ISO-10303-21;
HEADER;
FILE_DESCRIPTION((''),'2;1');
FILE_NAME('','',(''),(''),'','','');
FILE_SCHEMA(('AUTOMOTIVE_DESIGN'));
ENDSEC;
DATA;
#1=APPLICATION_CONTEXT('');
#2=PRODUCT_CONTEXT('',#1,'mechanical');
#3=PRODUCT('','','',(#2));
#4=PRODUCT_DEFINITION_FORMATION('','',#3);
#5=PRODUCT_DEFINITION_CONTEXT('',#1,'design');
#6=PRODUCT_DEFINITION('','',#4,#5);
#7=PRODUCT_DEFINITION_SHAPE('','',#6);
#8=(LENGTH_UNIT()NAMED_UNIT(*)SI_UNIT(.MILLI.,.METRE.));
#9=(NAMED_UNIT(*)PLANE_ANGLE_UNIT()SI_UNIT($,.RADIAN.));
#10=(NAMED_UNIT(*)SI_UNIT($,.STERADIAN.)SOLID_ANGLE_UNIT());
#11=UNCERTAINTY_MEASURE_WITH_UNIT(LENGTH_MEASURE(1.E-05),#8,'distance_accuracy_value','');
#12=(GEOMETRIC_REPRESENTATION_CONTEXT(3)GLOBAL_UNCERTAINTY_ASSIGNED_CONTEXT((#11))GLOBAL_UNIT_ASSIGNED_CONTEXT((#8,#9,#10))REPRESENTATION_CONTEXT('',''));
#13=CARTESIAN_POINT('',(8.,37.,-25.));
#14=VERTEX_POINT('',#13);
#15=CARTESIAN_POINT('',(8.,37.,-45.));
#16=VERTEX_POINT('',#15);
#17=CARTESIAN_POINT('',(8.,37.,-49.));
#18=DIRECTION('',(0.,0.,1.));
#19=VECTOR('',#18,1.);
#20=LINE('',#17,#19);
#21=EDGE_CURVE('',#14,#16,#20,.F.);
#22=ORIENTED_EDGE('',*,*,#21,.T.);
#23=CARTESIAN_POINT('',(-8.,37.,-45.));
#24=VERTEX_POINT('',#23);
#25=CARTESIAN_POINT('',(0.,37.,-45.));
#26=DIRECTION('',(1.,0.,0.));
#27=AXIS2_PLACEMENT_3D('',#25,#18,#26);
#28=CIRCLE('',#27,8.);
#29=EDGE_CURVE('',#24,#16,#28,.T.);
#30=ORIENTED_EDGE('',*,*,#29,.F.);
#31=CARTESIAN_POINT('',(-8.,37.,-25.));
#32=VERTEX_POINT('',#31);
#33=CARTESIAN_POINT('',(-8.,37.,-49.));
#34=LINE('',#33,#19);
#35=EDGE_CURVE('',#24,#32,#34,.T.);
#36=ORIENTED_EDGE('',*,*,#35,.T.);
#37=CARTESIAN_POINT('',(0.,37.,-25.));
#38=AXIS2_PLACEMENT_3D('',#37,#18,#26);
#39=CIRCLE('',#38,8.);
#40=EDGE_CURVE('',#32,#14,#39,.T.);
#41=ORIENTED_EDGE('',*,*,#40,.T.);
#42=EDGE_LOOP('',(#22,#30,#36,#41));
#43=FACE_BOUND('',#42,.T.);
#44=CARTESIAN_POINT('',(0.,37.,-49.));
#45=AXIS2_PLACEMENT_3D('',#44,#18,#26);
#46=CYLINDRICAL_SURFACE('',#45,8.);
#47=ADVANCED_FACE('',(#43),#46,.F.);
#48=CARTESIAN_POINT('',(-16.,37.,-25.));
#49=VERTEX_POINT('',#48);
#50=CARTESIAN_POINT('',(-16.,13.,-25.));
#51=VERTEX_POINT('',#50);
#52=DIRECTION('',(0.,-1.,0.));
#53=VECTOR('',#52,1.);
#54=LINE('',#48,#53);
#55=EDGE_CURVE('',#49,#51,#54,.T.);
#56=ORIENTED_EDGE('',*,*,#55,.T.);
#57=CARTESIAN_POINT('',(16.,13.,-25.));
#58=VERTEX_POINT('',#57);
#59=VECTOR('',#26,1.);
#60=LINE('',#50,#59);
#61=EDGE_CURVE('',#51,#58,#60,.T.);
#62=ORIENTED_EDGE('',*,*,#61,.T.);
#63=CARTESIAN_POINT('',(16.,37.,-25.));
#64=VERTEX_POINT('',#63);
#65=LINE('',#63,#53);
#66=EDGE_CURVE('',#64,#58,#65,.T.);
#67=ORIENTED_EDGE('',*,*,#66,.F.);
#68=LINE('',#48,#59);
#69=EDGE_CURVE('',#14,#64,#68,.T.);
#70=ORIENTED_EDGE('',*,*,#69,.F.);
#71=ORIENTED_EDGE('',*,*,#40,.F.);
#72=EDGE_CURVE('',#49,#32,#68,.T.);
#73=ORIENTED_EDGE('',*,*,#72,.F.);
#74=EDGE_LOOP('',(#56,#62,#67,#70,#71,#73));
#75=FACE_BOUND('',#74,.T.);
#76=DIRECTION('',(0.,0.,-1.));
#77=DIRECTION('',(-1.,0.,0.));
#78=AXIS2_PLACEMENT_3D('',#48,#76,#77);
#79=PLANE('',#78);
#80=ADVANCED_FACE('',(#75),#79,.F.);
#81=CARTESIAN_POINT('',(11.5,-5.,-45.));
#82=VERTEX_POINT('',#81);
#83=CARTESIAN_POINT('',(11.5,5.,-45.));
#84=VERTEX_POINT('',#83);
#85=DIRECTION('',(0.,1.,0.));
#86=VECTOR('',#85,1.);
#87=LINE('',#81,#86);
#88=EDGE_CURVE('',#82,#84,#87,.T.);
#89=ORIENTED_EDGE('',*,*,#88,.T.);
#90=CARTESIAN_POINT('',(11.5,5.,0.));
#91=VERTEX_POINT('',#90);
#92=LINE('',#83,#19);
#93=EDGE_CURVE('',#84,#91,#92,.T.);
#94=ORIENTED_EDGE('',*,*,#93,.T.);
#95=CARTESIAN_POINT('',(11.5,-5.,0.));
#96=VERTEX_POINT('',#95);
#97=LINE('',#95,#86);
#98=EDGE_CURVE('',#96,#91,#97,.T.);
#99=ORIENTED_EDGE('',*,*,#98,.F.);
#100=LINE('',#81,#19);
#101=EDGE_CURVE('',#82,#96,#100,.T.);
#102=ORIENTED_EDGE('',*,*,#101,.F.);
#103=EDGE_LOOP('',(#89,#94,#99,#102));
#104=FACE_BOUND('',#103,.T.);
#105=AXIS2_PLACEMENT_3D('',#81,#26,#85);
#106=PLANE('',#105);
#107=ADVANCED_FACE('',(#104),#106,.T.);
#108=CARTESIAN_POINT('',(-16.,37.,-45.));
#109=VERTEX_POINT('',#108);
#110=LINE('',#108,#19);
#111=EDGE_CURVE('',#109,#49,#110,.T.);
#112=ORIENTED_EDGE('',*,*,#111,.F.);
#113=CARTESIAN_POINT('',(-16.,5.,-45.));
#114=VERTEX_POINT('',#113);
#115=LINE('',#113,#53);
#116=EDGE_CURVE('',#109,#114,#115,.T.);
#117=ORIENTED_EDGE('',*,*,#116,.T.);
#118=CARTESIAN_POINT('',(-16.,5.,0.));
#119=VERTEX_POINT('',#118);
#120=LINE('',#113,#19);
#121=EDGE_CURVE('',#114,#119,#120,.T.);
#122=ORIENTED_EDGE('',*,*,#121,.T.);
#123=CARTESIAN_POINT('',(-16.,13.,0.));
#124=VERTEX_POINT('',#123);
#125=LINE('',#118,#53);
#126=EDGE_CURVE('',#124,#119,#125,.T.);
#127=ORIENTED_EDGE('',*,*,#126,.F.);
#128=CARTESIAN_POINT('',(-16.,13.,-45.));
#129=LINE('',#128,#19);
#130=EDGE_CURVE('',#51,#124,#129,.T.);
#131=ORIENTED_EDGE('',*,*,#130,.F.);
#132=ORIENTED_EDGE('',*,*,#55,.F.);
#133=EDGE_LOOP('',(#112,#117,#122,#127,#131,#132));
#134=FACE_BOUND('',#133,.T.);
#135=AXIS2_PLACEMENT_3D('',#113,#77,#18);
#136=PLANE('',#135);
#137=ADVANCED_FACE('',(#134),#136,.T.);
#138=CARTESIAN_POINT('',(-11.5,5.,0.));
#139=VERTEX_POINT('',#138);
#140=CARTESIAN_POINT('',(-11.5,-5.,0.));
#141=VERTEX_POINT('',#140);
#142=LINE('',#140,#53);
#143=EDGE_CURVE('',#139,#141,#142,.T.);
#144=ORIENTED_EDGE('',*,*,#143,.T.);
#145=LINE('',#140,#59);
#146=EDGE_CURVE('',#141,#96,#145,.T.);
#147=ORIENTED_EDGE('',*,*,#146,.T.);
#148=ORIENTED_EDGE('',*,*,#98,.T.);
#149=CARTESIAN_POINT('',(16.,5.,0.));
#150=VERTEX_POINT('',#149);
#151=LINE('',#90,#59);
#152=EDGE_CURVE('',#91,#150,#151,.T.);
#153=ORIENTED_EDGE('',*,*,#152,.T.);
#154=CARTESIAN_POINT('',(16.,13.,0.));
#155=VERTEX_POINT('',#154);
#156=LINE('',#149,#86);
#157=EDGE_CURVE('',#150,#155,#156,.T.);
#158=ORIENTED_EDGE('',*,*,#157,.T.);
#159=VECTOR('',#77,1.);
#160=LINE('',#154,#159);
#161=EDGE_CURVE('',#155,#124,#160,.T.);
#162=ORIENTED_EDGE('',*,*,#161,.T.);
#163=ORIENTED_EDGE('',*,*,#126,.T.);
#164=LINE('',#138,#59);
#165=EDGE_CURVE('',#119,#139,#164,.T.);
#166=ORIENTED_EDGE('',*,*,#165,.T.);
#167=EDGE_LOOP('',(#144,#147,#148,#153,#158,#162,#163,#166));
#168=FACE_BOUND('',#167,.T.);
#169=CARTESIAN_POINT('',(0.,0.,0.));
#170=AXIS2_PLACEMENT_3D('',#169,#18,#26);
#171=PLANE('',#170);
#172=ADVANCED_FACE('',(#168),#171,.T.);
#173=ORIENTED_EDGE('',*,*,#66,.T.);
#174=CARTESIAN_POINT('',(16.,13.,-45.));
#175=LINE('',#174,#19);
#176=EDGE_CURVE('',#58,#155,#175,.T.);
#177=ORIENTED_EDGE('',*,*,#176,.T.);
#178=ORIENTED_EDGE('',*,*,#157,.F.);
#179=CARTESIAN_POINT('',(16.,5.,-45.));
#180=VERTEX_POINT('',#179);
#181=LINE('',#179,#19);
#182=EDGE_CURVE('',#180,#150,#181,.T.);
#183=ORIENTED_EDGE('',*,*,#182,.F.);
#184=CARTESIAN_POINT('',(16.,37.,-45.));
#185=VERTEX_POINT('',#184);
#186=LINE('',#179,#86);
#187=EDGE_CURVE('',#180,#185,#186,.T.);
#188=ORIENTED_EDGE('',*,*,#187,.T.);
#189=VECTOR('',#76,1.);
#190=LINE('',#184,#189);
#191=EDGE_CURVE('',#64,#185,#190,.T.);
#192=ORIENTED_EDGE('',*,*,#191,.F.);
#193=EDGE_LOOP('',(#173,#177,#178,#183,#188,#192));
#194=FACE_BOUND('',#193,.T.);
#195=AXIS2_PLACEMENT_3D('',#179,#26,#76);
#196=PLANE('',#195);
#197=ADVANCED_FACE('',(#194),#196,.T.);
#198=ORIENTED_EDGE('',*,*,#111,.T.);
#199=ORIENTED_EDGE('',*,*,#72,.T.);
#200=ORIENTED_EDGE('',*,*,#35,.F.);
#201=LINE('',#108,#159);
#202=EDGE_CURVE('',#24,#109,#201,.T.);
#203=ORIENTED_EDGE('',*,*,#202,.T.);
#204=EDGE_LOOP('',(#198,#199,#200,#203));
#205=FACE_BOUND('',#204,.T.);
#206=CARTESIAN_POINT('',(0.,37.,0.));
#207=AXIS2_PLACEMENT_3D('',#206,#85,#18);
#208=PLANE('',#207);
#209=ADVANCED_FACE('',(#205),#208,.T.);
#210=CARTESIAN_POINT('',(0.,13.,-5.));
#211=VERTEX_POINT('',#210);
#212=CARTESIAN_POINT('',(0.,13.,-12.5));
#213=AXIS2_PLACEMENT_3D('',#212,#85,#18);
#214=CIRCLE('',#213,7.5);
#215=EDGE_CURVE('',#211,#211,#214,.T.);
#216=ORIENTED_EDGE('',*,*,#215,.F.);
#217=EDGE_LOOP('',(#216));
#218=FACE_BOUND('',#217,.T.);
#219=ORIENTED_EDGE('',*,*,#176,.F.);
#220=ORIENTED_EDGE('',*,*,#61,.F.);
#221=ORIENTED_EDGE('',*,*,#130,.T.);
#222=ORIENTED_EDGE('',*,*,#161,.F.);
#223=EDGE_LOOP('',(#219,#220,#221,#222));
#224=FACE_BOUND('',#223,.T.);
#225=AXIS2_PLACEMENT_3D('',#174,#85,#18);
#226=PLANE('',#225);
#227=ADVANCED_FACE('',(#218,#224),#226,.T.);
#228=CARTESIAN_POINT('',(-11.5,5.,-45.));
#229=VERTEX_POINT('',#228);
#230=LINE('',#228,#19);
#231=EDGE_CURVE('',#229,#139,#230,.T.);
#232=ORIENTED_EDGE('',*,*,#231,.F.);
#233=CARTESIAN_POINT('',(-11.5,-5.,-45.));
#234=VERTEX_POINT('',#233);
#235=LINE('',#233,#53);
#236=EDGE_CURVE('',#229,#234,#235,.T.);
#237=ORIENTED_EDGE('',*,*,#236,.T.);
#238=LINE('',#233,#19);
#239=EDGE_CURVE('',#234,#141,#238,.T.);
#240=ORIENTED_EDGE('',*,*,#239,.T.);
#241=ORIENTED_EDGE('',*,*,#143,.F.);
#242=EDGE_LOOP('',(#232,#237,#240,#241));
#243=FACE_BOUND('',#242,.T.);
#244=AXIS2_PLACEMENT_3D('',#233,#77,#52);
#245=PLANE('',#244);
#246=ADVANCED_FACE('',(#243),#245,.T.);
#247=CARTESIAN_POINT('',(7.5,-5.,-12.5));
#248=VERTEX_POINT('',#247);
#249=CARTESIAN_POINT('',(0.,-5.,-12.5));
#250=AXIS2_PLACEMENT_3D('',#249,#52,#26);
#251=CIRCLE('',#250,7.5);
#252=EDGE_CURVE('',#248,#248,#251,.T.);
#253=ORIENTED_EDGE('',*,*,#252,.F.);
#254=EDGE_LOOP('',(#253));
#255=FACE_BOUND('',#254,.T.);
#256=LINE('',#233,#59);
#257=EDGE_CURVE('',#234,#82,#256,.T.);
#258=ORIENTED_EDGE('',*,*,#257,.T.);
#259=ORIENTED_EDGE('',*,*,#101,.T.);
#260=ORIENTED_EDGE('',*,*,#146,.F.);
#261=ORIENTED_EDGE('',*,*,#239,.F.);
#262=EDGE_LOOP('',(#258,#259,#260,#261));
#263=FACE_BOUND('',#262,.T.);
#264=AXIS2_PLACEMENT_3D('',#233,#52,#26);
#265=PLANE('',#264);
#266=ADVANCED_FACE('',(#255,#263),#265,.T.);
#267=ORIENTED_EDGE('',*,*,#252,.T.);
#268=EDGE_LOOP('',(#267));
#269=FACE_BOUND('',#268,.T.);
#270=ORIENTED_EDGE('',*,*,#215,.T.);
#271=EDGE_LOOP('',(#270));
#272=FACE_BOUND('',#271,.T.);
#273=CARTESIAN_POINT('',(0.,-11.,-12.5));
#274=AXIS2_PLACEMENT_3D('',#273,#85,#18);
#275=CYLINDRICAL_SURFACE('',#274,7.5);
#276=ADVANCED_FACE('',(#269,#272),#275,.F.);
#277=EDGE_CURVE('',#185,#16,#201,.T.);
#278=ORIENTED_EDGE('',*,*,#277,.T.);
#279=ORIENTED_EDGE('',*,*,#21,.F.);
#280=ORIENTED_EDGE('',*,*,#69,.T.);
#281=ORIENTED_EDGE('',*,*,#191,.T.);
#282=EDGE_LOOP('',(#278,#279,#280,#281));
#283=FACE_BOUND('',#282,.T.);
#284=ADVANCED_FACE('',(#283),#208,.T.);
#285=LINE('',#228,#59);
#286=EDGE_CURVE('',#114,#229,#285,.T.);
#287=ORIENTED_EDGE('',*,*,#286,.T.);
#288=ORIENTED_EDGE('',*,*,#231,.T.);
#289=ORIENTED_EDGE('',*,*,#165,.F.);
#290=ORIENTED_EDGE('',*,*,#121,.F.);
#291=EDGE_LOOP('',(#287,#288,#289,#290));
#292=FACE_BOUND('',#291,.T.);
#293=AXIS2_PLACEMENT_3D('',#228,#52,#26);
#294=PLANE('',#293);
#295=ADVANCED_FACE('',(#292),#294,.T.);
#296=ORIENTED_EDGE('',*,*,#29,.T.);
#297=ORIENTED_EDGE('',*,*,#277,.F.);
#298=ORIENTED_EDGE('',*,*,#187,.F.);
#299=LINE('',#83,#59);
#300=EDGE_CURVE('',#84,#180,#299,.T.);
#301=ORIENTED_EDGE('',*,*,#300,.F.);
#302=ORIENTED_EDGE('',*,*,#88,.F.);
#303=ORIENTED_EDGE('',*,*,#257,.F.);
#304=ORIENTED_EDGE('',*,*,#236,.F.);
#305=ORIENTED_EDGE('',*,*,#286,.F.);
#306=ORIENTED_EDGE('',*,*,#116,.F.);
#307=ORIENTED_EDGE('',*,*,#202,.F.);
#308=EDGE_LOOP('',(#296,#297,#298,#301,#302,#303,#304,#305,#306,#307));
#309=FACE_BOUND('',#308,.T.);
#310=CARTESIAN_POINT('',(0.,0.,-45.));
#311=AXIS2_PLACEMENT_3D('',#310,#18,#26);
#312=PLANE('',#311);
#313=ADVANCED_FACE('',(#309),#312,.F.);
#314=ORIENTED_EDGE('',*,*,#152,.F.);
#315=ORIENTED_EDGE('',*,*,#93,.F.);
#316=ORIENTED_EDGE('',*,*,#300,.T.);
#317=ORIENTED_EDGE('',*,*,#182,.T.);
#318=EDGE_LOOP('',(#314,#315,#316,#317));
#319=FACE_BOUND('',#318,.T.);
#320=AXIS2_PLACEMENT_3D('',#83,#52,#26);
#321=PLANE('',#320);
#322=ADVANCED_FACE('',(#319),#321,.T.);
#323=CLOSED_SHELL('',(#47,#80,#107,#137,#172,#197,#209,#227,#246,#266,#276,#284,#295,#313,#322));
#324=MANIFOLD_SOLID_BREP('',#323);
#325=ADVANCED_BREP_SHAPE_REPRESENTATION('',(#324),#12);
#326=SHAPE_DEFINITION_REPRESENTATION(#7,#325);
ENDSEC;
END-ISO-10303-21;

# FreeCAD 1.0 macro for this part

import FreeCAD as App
import Part
import Sketcher
Q = App.Units.Quantity


def add_polygon(sketch, points):
    """Adds a closed chain of lines whose ends are joined by coincident constraints."""
    first, n = sketch.GeometryCount, len(points)
    for a, b in zip(points, points[1:] + points[:1]):
        sketch.addGeometry(Part.LineSegment(App.Vector(*a, 0), App.Vector(*b, 0)), False)
    for i in range(n):
        sketch.addConstraint(Sketcher.Constraint("Coincident", first + i, 2, first + (i + 1) % n, 1))

doc = App.newDocument("Part")
body = doc.addObject("PartDesign::Body", "Body")

# Sketch on XY plane
sketch1 = doc.addObject("Sketcher::SketchObject", "Sketch")
body.addObject(sketch1)
sketch1.AttachmentSupport = (doc.XY_Plane, [""])
sketch1.MapMode = "FlatFace"
add_polygon(sketch1, [(-11.5, -5), (11.5, -5), (11.5, 5), (16, 5), (16, 13), (-16, 13), (-16, 5), (-11.5, 5)])  # lines 0-7
sketch1.addConstraint([
    Sketcher.Constraint("Horizontal", 0),
    Sketcher.Constraint("Vertical", 1),
    Sketcher.Constraint("Horizontal", 2),
    Sketcher.Constraint("Vertical", 3),
    Sketcher.Constraint("Horizontal", 4),
    Sketcher.Constraint("Vertical", 5),
    Sketcher.Constraint("Horizontal", 6),
    Sketcher.Constraint("Vertical", 7),
    Sketcher.Constraint("Symmetric", 0, 2, 6, 2, -1, 1),
    Sketcher.Constraint("Symmetric", 2, 2, 5, 2, -2),
    Sketcher.Constraint("DistanceX", 0, 1, 0, 2, Q("23 mm")),
    Sketcher.Constraint("DistanceX", 4, 2, 4, 1, Q("32 mm")),
    Sketcher.Constraint("DistanceY", 1, 1, 1, 2, Q("10 mm")),
    Sketcher.Constraint("DistanceY", 3, 1, 3, 2, Q("8 mm")),
])
pad1 = doc.addObject("PartDesign::Pad", "Pad")
body.addObject(pad1)
pad1.Profile = sketch1
pad1.Length = 45
pad1.Reversed = True

# Sketch on XZ plane
sketch2 = doc.addObject("Sketcher::SketchObject", "Sketch001")
body.addObject(sketch2)
sketch2.AttachmentSupport = (doc.XZ_Plane, [""])
sketch2.MapMode = "FlatFace"
sketch2.AttachmentOffset = App.Placement(App.Vector(0, 0, -13), App.Rotation())
sketch2.addGeometry(Part.Circle(App.Vector(0, -12.5, 0), App.Vector(0, 0, 1), 7.5), False)
sketch2.addConstraint([
    Sketcher.Constraint("PointOnObject", 0, 3, -2),
    Sketcher.Constraint("Diameter", 0, Q("15 mm")),
    Sketcher.Constraint("DistanceY", 0, 3, -1, 1, Q("12.5 mm")),
])
pocket1 = doc.addObject("PartDesign::Pocket", "Pocket")
body.addObject(pocket1)
pocket1.Profile = sketch2
pocket1.Length = 24
pocket1.Reversed = True

# Sketch on XZ plane
sketch3 = doc.addObject("Sketcher::SketchObject", "Sketch002")
body.addObject(sketch3)
sketch3.AttachmentSupport = (doc.XZ_Plane, [""])
sketch3.MapMode = "FlatFace"
sketch3.AttachmentOffset = App.Placement(App.Vector(0, 0, -13), App.Rotation())
add_polygon(sketch3, [(-16, -45), (-16, -25), (16, -25), (16, -45)])  # lines 0-3
sketch3.addConstraint([
    Sketcher.Constraint("Vertical", 0),
    Sketcher.Constraint("Horizontal", 1),
    Sketcher.Constraint("Vertical", 2),
    Sketcher.Constraint("Horizontal", 3),
    Sketcher.Constraint("DistanceX", 1, 1, 1, 2, Q("32 mm")),
    Sketcher.Constraint("DistanceY", 0, 1, 0, 2, Q("20 mm")),
    Sketcher.Constraint("DistanceX", 0, 2, -1, 1, Q("16 mm")),
    Sketcher.Constraint("DistanceY", 0, 2, -1, 1, Q("25 mm")),
])
pad2 = doc.addObject("PartDesign::Pad", "Pad001")
body.addObject(pad2)
pad2.Profile = sketch3
pad2.Length = 24
pad2.Reversed = True

# Sketch on XY plane
sketch4 = doc.addObject("Sketcher::SketchObject", "Sketch003")
body.addObject(sketch4)
sketch4.AttachmentSupport = (doc.XY_Plane, [""])
sketch4.MapMode = "FlatFace"
sketch4.AttachmentOffset = App.Placement(App.Vector(0, 0, -25), App.Rotation())
sketch4.addGeometry(Part.Circle(App.Vector(0, 37, 0), App.Vector(0, 0, 1), 8), False)
sketch4.addConstraint([
    Sketcher.Constraint("PointOnObject", 0, 3, -2),
    Sketcher.Constraint("Diameter", 0, Q("16 mm")),
    Sketcher.Constraint("DistanceY", -1, 1, 0, 3, Q("37 mm")),
])
pocket2 = doc.addObject("PartDesign::Pocket", "Pocket001")
body.addObject(pocket2)
pocket2.Profile = sketch4
pocket2.Length = 24

doc.recompute()
